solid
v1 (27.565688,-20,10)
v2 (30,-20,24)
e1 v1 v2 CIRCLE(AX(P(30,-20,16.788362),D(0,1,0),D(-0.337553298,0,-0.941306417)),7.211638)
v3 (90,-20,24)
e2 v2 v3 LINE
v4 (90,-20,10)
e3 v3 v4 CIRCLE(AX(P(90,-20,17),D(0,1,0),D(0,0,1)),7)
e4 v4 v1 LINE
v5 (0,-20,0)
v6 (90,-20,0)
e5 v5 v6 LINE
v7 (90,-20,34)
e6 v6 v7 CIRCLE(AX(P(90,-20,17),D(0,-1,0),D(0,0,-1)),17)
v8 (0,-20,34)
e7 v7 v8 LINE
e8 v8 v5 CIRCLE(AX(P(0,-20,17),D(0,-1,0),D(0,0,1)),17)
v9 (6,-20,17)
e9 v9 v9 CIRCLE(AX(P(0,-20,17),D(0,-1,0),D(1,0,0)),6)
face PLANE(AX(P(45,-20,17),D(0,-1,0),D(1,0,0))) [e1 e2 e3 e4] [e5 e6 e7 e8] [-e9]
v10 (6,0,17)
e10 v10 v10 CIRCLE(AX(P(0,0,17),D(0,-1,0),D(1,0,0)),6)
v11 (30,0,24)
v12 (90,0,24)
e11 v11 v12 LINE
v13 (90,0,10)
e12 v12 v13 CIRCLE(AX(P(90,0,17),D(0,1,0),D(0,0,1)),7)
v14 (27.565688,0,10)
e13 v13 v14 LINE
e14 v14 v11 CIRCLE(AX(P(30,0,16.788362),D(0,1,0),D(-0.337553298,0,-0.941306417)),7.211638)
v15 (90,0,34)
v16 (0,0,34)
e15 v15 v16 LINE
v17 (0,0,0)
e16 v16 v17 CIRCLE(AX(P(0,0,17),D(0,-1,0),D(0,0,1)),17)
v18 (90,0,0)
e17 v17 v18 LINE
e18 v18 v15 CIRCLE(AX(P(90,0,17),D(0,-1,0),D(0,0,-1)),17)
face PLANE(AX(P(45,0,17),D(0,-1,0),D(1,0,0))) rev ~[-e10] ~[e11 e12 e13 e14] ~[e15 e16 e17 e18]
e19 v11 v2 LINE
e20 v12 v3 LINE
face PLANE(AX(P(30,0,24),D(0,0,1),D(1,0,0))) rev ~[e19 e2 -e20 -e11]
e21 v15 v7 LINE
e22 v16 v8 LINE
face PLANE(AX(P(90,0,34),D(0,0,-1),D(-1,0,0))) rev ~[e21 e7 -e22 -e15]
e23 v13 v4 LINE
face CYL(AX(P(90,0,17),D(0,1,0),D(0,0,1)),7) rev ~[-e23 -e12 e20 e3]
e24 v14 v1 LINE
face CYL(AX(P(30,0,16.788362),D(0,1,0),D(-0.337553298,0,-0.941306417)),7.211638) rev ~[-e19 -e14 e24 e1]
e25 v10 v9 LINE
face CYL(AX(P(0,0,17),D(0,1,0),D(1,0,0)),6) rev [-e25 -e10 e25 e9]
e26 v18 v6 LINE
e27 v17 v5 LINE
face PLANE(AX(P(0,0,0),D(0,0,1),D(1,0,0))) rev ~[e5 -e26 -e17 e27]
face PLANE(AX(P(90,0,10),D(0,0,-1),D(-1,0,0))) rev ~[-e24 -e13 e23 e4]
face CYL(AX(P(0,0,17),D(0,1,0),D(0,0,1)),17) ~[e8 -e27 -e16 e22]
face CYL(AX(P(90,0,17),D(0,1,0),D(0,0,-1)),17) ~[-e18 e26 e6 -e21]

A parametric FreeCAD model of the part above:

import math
import FreeCAD as App
import Part
import Sketcher
from FreeCAD import Vector
Q = App.Units.Quantity

doc = App.newDocument("Part")
body = doc.addObject("PartDesign::Body", "Body")

sketch1 = body.newObject("Sketcher::SketchObject", "Sketch")
sketch1.AttachmentSupport = (doc.getObject("XZ_Plane"), [""])
sketch1.MapMode = "FlatFace"
sketch1.addGeometry([
    Part.LineSegment(Vector(90, 34, 0), Vector(0, 34, 0)),
    Part.ArcOfCircle(Part.Circle(Vector(0, 17, 0), Vector(0, 0, 1), 17), math.radians(90), math.radians(270)),
    Part.LineSegment(Vector(0, 0, 0), Vector(90, 0, 0)),
    Part.ArcOfCircle(Part.Circle(Vector(90, 17, 0), Vector(0, 0, 1), 17), math.radians(-90), math.radians(90)),
    Part.Circle(Vector(0, 17, 0), Vector(0, 0, 1), 6),
    Part.LineSegment(Vector(90, 10, 0), Vector(28, 10, 0)),
    Part.ArcOfCircle(Part.Circle(Vector(30, 17, 0), Vector(0, 0, 1), 7), math.radians(90), math.radians(250)),
    Part.LineSegment(Vector(30, 24, 0), Vector(90, 24, 0)),
    Part.ArcOfCircle(Part.Circle(Vector(90, 17, 0), Vector(0, 0, 1), 7), math.radians(-90), math.radians(90)),
], False)
sketch1.addConstraint([
    Sketcher.Constraint("Tangent", 0, 2, 1, 1),
    Sketcher.Constraint("Tangent", 1, 2, 2, 1),
    Sketcher.Constraint("Tangent", 2, 2, 3, 1),
    Sketcher.Constraint("Tangent", 3, 2, 0, 1),
    Sketcher.Constraint("Coincident", 5, 2, 6, 2),
    Sketcher.Constraint("Tangent", 6, 1, 7, 1),
    Sketcher.Constraint("Tangent", 7, 2, 8, 2),
    Sketcher.Constraint("Tangent", 8, 1, 5, 1),
    Sketcher.Constraint("Horizontal", 0),
    Sketcher.Constraint("Horizontal", 2),
    Sketcher.Constraint("Horizontal", 5),
    Sketcher.Constraint("Horizontal", 7),
    Sketcher.Constraint("Coincident", 1, 2, -1, 1),
    Sketcher.Constraint("Coincident", 4, 3, 1, 3),
    Sketcher.Constraint("Coincident", 8, 3, 3, 3),
    Sketcher.Constraint("Diameter", 4, Q("12 mm")),
    Sketcher.Constraint("Radius", 1, Q("17 mm")),
    Sketcher.Constraint("Radius", 8, Q("7 mm")),
    Sketcher.Constraint("DistanceX", 0, 2, 0, 1, Q("90 mm")),
    Sketcher.Constraint("DistanceX", 7, 1, 7, 2, Q("60 mm")),
    Sketcher.Constraint("Radius", 6, Q("7.211638 mm")),
])
pad1 = body.newObject("PartDesign::Pad", "Pad")
pad1.Profile = sketch1
pad1.Length = 20

doc.recompute()
